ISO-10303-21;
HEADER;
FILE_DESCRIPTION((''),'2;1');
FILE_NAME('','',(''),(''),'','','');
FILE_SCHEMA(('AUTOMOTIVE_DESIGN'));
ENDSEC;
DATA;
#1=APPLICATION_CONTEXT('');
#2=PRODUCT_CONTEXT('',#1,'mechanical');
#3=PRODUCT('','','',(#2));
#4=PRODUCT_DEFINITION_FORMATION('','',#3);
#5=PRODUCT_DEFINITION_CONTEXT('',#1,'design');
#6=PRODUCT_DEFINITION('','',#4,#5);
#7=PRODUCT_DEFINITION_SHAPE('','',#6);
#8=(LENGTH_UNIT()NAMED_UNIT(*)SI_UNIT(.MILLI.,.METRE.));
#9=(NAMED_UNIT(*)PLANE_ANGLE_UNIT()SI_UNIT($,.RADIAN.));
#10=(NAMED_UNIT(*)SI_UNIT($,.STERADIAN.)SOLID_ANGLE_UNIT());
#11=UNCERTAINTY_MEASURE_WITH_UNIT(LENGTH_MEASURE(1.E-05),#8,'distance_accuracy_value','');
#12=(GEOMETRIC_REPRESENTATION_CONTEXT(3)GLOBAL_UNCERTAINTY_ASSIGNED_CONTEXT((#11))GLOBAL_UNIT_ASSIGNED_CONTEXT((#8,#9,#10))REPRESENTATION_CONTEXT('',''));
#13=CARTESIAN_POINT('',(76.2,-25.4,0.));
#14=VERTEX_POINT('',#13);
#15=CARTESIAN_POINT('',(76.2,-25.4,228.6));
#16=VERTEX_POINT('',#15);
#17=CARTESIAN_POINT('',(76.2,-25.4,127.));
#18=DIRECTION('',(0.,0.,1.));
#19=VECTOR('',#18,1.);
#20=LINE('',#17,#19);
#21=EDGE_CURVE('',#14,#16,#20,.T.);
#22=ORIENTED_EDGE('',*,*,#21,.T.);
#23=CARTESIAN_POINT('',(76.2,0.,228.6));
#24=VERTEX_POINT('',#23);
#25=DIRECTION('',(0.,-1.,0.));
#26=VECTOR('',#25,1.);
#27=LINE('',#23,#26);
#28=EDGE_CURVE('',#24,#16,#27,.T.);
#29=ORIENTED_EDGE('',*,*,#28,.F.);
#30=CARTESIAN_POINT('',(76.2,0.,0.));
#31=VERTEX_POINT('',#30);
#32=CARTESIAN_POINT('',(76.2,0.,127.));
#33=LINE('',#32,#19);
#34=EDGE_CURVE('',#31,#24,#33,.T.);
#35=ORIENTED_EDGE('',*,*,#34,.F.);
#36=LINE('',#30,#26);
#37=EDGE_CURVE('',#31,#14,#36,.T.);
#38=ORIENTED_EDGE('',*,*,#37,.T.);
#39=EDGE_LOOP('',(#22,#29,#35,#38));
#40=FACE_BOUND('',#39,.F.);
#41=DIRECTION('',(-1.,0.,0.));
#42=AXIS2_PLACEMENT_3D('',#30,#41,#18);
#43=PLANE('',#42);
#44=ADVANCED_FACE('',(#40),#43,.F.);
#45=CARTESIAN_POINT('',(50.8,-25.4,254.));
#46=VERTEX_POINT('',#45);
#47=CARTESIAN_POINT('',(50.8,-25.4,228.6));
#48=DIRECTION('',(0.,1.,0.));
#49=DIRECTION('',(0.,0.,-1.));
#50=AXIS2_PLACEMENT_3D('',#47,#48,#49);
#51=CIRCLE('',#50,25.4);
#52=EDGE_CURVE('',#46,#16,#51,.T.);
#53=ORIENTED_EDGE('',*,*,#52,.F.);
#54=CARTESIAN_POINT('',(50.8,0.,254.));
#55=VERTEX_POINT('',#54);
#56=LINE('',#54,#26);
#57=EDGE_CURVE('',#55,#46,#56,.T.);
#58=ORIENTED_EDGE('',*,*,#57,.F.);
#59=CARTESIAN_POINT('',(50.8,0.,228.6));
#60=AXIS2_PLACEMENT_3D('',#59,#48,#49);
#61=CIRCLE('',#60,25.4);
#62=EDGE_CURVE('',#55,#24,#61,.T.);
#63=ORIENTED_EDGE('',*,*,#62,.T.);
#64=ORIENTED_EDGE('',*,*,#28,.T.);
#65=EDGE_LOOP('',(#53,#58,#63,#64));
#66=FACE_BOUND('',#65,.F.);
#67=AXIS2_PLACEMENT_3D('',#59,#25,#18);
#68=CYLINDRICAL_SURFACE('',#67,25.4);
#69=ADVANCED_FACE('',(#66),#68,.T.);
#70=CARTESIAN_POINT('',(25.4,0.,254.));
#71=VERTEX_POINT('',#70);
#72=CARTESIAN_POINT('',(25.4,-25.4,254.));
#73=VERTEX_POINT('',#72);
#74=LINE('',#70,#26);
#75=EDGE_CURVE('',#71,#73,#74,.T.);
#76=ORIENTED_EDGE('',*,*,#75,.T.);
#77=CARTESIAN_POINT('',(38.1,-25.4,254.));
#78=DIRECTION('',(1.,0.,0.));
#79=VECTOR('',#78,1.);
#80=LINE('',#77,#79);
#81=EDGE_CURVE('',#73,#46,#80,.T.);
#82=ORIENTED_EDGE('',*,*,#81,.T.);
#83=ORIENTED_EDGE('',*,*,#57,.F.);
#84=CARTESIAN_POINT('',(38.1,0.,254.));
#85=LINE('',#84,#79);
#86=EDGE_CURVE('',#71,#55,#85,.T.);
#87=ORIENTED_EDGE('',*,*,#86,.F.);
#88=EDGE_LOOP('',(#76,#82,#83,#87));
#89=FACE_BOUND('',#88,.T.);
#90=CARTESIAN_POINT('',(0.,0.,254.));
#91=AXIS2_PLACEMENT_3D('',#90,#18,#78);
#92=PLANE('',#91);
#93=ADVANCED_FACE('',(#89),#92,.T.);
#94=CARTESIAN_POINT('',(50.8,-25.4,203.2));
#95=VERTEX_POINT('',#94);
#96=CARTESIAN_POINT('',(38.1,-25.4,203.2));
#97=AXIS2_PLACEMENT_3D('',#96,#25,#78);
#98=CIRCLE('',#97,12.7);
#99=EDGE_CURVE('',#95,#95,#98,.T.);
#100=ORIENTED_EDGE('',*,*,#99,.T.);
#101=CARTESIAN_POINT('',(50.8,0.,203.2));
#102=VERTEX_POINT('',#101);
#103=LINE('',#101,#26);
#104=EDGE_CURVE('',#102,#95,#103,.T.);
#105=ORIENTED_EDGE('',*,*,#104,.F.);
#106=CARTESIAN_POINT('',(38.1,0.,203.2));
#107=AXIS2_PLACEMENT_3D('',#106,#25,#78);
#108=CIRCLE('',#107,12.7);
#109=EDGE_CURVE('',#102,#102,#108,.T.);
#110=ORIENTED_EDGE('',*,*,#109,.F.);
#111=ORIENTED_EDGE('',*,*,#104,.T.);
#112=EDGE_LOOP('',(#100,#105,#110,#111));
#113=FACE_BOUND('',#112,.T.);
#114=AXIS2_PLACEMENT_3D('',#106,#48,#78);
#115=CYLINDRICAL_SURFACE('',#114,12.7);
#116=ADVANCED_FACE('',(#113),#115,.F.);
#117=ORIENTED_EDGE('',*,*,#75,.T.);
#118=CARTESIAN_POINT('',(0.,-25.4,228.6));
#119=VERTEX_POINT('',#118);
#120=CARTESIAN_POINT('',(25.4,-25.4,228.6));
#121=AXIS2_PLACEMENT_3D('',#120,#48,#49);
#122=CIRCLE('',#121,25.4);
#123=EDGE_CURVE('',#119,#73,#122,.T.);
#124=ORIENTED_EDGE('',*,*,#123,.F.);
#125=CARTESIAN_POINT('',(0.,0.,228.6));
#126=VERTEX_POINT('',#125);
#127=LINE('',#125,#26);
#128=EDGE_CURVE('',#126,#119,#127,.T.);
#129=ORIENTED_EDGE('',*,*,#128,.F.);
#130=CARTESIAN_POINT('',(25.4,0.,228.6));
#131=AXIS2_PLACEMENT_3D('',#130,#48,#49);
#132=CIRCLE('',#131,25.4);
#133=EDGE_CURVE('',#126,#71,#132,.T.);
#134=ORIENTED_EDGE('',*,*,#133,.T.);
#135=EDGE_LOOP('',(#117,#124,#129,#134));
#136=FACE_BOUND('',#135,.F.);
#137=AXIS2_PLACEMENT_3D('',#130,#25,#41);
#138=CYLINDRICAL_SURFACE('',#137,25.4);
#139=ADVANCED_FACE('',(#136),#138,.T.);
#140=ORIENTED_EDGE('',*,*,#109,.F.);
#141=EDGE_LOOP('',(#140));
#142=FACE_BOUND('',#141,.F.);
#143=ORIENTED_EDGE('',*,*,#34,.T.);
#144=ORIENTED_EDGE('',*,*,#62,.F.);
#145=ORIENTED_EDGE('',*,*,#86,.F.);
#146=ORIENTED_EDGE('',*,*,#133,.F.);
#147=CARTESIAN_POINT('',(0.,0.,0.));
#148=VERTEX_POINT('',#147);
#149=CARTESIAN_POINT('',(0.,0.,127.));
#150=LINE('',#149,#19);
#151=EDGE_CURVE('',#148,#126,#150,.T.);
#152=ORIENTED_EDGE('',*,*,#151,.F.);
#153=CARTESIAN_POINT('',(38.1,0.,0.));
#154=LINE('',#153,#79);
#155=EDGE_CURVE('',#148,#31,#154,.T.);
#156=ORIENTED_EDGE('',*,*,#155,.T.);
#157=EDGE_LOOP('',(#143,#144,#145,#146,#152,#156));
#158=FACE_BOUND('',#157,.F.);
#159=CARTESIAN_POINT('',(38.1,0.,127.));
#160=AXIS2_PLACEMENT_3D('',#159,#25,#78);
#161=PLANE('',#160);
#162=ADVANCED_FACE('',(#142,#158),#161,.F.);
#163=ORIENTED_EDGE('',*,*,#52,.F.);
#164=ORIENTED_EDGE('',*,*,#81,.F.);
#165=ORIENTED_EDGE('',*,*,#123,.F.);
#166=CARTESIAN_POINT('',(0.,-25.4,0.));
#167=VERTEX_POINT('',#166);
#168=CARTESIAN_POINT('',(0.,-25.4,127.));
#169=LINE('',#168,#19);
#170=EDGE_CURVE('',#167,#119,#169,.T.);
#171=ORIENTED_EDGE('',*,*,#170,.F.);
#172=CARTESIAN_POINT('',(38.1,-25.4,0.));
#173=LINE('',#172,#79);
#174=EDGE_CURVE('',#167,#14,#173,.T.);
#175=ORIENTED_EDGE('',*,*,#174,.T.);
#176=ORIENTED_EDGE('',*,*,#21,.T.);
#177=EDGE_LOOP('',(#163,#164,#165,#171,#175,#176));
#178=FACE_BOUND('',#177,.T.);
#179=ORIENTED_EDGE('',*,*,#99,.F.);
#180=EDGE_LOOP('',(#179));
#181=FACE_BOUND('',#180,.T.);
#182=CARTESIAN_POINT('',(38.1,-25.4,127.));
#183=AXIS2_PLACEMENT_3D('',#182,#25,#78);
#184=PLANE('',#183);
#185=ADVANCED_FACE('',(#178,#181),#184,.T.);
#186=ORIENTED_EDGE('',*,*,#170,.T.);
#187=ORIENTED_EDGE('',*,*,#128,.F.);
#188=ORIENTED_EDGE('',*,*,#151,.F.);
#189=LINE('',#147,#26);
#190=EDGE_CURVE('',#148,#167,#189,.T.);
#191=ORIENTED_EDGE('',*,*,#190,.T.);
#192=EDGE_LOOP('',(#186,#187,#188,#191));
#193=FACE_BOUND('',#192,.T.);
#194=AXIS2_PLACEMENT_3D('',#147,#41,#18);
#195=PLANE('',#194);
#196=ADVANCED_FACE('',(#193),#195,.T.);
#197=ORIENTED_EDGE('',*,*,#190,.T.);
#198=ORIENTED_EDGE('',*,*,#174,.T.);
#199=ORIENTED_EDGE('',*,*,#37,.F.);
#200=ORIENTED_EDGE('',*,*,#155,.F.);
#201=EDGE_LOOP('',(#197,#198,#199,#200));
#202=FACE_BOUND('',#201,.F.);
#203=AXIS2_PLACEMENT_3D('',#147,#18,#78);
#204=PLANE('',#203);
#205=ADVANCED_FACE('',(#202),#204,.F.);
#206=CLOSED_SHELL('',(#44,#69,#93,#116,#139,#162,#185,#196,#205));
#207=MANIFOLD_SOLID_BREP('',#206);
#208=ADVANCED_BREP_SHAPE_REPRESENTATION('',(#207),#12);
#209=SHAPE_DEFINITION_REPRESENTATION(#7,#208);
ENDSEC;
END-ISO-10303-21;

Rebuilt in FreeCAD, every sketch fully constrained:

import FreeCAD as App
import Part
import Sketcher
from FreeCAD import Vector
Q = App.Units.Quantity


def edges_at(feature, points):
    """Names of the edges that pass closest to the given points."""
    edges = feature.Shape.Edges
    near = lambda p: min(range(len(edges)), key=lambda i: edges[i].distToShape(Part.Vertex(*p))[0])
    return sorted({f"Edge{near(p) + 1}" for p in points})

doc = App.newDocument("Part")
body = doc.addObject("PartDesign::Body", "Body")

sketch1 = body.newObject("Sketcher::SketchObject", "Sketch")
sketch1.AttachmentSupport = (doc.getObject("XZ_Plane"), [""])
sketch1.MapMode = "FlatFace"
sketch1.addGeometry([
    Part.LineSegment(Vector(0, 254, 0), Vector(0, 0, 0)),
    Part.LineSegment(Vector(0, 0, 0), Vector(76.2, 0, 0)),
    Part.LineSegment(Vector(76.2, 0, 0), Vector(76.2, 254, 0)),
    Part.LineSegment(Vector(76.2, 254, 0), Vector(0, 254, 0)),
    Part.Circle(Vector(38.1, 203.2, 0), Vector(0, 0, 1), 12.7),
], False)
sketch1.addConstraint([
    Sketcher.Constraint("Coincident", 0, 2, 1, 1),
    Sketcher.Constraint("Coincident", 1, 2, 2, 1),
    Sketcher.Constraint("Coincident", 2, 2, 3, 1),
    Sketcher.Constraint("Coincident", 3, 2, 0, 1),
    Sketcher.Constraint("Vertical", 0),
    Sketcher.Constraint("Horizontal", 1),
    Sketcher.Constraint("Vertical", 2),
    Sketcher.Constraint("Horizontal", 3),
    Sketcher.Constraint("Coincident", 0, 2, -1, 1),
    Sketcher.Constraint("Diameter", 4, Q("1 in")),
    Sketcher.Constraint("DistanceX", 1, 1, 1, 2, Q("3 in")),
    Sketcher.Constraint("DistanceY", 0, 2, 0, 1, Q("10 in")),
    Sketcher.Constraint("DistanceY", -1, 1, 4, 3, Q("8 in")),
    Sketcher.Constraint("DistanceX", -1, 1, 4, 3, Q("1.5 in")),
])
pad1 = body.newObject("PartDesign::Pad", "Pad")
pad1.Profile = sketch1
pad1.Length = Q("1 in")
doc.recompute()

fillet = body.newObject("PartDesign::Fillet", "Fillet")
fillet.Base = (pad1, edges_at(pad1, [(0, -12.7, 254), (76.2, -12.7, 254)]))
fillet.Radius = Q("1 in")

doc.recompute()
